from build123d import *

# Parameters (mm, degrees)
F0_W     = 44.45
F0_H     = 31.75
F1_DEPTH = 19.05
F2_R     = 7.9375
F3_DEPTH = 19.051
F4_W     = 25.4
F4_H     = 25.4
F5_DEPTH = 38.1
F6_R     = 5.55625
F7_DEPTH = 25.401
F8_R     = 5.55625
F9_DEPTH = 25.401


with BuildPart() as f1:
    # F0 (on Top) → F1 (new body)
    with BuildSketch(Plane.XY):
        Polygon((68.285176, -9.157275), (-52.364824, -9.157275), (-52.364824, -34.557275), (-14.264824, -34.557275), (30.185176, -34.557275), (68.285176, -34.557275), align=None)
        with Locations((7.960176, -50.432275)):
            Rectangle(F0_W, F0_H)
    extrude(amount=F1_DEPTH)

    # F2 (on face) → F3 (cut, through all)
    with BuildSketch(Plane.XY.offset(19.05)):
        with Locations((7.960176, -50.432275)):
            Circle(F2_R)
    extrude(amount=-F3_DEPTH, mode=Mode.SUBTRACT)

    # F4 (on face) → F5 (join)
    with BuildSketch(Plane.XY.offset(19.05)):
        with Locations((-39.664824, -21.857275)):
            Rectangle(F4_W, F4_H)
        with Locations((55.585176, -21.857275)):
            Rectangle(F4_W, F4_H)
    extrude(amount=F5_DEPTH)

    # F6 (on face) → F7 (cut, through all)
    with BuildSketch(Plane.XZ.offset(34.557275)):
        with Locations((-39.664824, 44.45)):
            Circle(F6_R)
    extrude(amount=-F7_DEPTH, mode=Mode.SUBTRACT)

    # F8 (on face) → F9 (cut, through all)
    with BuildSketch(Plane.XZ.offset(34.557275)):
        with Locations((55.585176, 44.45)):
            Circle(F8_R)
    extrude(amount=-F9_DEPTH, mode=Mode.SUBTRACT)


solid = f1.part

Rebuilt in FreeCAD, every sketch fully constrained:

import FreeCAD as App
import Part
import Sketcher

V = App.Vector
Q = App.Units.Quantity


def add_polygon(sketch, points):
    """Adds a closed chain of lines whose ends are joined by coincident constraints."""
    first, n = sketch.GeometryCount, len(points)
    for a, b in zip(points, points[1:] + points[:1]):
        sketch.addGeometry(Part.LineSegment(App.Vector(*a, 0), App.Vector(*b, 0)), False)
    for i in range(n):
        sketch.addConstraint(Sketcher.Constraint("Coincident", first + i, 2, first + (i + 1) % n, 1))

doc = App.newDocument("Part")
body = doc.addObject("PartDesign::Body", "Body")

# Sketch on XY plane
sketch1 = doc.addObject("Sketcher::SketchObject", "Sketch")
body.addObject(sketch1)
sketch1.AttachmentSupport = (doc.XY_Plane, [""])
sketch1.MapMode = "FlatFace"
add_polygon(sketch1, [(68, -9), (-52, -9), (-52, -35), (-14, -35), (-14, -66), (30, -66), (30, -35), (68, -35)])  # lines 0-7
sketch1.addConstraint([
    Sketcher.Constraint("Horizontal", 0),
    Sketcher.Constraint("Vertical", 1),
    Sketcher.Constraint("Horizontal", 2),
    Sketcher.Constraint("Vertical", 3),
    Sketcher.Constraint("Horizontal", 4),
    Sketcher.Constraint("Vertical", 5),
    Sketcher.Constraint("Horizontal", 6),
    Sketcher.Constraint("Vertical", 7),
    Sketcher.Constraint("Horizontal", 2, 2, 5, 2),
    Sketcher.Constraint("Equal", 2, 6),
    Sketcher.Constraint("DistanceY", 1, 2, 1, 1, Q("1 in")),
    Sketcher.Constraint("DistanceX", 2, 1, 2, 2, Q("1.5 in")),
    Sketcher.Constraint("DistanceX", 0, 2, 0, 1, Q("4.75 in")),
    Sketcher.Constraint("DistanceY", 3, 2, 3, 1, Q("1.25 in")),
    Sketcher.Constraint("DistanceX", 0, 2, -1, 1, 52.364824),
    Sketcher.Constraint("DistanceY", 0, 2, -1, 1, 9.157275),
])
pad1 = doc.addObject("PartDesign::Pad", "Pad")
body.addObject(pad1)
pad1.Profile = sketch1
pad1.Length = Q("0.75 in")

# Sketch on XY plane
sketch2 = doc.addObject("Sketcher::SketchObject", "Sketch001")
body.addObject(sketch2)
sketch2.AttachmentSupport = (doc.XY_Plane, [""])
sketch2.MapMode = "FlatFace"
sketch2.AttachmentOffset = App.Placement(V(0, 0, 0.75 * 25.4), App.Rotation())
sketch2.addGeometry(Part.Circle(V(8, -50, 0), V(0, 0, 1), 8), False)
sketch2.addConstraint([
    Sketcher.Constraint("Diameter", 0, Q("0.625 in")),
    Sketcher.Constraint("DistanceX", -1, 1, 0, 3, 7.960176),
    Sketcher.Constraint("DistanceY", 0, 3, -1, 1, 50.432275),
])
pocket1 = doc.addObject("PartDesign::Pocket", "Pocket")
body.addObject(pocket1)
pocket1.Profile = sketch2
pocket1.Type = "ThroughAll"

# Sketch on XY plane
sketch3 = doc.addObject("Sketcher::SketchObject", "Sketch002")
body.addObject(sketch3)
sketch3.AttachmentSupport = (doc.XY_Plane, [""])
sketch3.MapMode = "FlatFace"
sketch3.AttachmentOffset = App.Placement(V(0, 0, 0.75 * 25.4), App.Rotation())
add_polygon(sketch3, [(-52, -9), (-52, -35), (-27, -35), (-27, -9)])  # lines 0-3
add_polygon(sketch3, [(43, -9), (43, -35), (68, -35), (68, -9)])  # lines 4-7
sketch3.addConstraint([
    Sketcher.Constraint("Vertical", 0),
    Sketcher.Constraint("Horizontal", 1),
    Sketcher.Constraint("Vertical", 2),
    Sketcher.Constraint("Horizontal", 3),
    Sketcher.Constraint("Vertical", 4),
    Sketcher.Constraint("Horizontal", 5),
    Sketcher.Constraint("Vertical", 6),
    Sketcher.Constraint("Horizontal", 7),
    Sketcher.Constraint("Horizontal", 1, 2, 4, 2),
    Sketcher.Constraint("Horizontal", 3, 2, 6, 2),
    Sketcher.Constraint("Equal", 3, 5),
    Sketcher.Constraint("Equal", 7, 0),
    Sketcher.Constraint("DistanceX", 1, 1, 1, 2, Q("1 in")),
    Sketcher.Constraint("DistanceX", 1, 2, 4, 2, Q("2.75 in")),
    Sketcher.Constraint("DistanceX", 0, 2, -1, 1, 52.364824),
    Sketcher.Constraint("DistanceY", 0, 2, -1, 1, 34.557275),
])
pad2 = doc.addObject("PartDesign::Pad", "Pad001")
body.addObject(pad2)
pad2.Profile = sketch3
pad2.Length = Q("1.5 in")

# Sketch on XZ plane
sketch4 = doc.addObject("Sketcher::SketchObject", "Sketch003")
body.addObject(sketch4)
sketch4.AttachmentSupport = (doc.XZ_Plane, [""])
sketch4.MapMode = "FlatFace"
sketch4.AttachmentOffset = App.Placement(V(0, 0, 34.557275), App.Rotation())
sketch4.addGeometry(Part.Circle(V(-40, 44, 0), V(0, 0, 1), 6), False)
sketch4.addConstraint([
    Sketcher.Constraint("Diameter", 0, Q("0.4375 in")),
    Sketcher.Constraint("DistanceY", -1, 1, 0, 3, Q("1.75 in")),
    Sketcher.Constraint("DistanceX", 0, 3, -1, 1, 39.664824),
])
pocket2 = doc.addObject("PartDesign::Pocket", "Pocket001")
body.addObject(pocket2)
pocket2.Profile = sketch4
pocket2.Type = "ThroughAll"

# Sketch on XZ plane
sketch5 = doc.addObject("Sketcher::SketchObject", "Sketch004")
body.addObject(sketch5)
sketch5.AttachmentSupport = (doc.XZ_Plane, [""])
sketch5.MapMode = "FlatFace"
sketch5.AttachmentOffset = App.Placement(V(0, 0, 34.557275), App.Rotation())
sketch5.addGeometry(Part.Circle(V(56, 44, 0), V(0, 0, 1), 6), False)
sketch5.addConstraint([
    Sketcher.Constraint("Diameter", 0, Q("0.4375 in")),
    Sketcher.Constraint("DistanceY", -1, 1, 0, 3, Q("1.75 in")),
    Sketcher.Constraint("DistanceX", -1, 1, 0, 3, 55.585176),
])
pocket3 = doc.addObject("PartDesign::Pocket", "Pocket002")
body.addObject(pocket3)
pocket3.Profile = sketch5
pocket3.Type = "ThroughAll"

doc.recompute()
